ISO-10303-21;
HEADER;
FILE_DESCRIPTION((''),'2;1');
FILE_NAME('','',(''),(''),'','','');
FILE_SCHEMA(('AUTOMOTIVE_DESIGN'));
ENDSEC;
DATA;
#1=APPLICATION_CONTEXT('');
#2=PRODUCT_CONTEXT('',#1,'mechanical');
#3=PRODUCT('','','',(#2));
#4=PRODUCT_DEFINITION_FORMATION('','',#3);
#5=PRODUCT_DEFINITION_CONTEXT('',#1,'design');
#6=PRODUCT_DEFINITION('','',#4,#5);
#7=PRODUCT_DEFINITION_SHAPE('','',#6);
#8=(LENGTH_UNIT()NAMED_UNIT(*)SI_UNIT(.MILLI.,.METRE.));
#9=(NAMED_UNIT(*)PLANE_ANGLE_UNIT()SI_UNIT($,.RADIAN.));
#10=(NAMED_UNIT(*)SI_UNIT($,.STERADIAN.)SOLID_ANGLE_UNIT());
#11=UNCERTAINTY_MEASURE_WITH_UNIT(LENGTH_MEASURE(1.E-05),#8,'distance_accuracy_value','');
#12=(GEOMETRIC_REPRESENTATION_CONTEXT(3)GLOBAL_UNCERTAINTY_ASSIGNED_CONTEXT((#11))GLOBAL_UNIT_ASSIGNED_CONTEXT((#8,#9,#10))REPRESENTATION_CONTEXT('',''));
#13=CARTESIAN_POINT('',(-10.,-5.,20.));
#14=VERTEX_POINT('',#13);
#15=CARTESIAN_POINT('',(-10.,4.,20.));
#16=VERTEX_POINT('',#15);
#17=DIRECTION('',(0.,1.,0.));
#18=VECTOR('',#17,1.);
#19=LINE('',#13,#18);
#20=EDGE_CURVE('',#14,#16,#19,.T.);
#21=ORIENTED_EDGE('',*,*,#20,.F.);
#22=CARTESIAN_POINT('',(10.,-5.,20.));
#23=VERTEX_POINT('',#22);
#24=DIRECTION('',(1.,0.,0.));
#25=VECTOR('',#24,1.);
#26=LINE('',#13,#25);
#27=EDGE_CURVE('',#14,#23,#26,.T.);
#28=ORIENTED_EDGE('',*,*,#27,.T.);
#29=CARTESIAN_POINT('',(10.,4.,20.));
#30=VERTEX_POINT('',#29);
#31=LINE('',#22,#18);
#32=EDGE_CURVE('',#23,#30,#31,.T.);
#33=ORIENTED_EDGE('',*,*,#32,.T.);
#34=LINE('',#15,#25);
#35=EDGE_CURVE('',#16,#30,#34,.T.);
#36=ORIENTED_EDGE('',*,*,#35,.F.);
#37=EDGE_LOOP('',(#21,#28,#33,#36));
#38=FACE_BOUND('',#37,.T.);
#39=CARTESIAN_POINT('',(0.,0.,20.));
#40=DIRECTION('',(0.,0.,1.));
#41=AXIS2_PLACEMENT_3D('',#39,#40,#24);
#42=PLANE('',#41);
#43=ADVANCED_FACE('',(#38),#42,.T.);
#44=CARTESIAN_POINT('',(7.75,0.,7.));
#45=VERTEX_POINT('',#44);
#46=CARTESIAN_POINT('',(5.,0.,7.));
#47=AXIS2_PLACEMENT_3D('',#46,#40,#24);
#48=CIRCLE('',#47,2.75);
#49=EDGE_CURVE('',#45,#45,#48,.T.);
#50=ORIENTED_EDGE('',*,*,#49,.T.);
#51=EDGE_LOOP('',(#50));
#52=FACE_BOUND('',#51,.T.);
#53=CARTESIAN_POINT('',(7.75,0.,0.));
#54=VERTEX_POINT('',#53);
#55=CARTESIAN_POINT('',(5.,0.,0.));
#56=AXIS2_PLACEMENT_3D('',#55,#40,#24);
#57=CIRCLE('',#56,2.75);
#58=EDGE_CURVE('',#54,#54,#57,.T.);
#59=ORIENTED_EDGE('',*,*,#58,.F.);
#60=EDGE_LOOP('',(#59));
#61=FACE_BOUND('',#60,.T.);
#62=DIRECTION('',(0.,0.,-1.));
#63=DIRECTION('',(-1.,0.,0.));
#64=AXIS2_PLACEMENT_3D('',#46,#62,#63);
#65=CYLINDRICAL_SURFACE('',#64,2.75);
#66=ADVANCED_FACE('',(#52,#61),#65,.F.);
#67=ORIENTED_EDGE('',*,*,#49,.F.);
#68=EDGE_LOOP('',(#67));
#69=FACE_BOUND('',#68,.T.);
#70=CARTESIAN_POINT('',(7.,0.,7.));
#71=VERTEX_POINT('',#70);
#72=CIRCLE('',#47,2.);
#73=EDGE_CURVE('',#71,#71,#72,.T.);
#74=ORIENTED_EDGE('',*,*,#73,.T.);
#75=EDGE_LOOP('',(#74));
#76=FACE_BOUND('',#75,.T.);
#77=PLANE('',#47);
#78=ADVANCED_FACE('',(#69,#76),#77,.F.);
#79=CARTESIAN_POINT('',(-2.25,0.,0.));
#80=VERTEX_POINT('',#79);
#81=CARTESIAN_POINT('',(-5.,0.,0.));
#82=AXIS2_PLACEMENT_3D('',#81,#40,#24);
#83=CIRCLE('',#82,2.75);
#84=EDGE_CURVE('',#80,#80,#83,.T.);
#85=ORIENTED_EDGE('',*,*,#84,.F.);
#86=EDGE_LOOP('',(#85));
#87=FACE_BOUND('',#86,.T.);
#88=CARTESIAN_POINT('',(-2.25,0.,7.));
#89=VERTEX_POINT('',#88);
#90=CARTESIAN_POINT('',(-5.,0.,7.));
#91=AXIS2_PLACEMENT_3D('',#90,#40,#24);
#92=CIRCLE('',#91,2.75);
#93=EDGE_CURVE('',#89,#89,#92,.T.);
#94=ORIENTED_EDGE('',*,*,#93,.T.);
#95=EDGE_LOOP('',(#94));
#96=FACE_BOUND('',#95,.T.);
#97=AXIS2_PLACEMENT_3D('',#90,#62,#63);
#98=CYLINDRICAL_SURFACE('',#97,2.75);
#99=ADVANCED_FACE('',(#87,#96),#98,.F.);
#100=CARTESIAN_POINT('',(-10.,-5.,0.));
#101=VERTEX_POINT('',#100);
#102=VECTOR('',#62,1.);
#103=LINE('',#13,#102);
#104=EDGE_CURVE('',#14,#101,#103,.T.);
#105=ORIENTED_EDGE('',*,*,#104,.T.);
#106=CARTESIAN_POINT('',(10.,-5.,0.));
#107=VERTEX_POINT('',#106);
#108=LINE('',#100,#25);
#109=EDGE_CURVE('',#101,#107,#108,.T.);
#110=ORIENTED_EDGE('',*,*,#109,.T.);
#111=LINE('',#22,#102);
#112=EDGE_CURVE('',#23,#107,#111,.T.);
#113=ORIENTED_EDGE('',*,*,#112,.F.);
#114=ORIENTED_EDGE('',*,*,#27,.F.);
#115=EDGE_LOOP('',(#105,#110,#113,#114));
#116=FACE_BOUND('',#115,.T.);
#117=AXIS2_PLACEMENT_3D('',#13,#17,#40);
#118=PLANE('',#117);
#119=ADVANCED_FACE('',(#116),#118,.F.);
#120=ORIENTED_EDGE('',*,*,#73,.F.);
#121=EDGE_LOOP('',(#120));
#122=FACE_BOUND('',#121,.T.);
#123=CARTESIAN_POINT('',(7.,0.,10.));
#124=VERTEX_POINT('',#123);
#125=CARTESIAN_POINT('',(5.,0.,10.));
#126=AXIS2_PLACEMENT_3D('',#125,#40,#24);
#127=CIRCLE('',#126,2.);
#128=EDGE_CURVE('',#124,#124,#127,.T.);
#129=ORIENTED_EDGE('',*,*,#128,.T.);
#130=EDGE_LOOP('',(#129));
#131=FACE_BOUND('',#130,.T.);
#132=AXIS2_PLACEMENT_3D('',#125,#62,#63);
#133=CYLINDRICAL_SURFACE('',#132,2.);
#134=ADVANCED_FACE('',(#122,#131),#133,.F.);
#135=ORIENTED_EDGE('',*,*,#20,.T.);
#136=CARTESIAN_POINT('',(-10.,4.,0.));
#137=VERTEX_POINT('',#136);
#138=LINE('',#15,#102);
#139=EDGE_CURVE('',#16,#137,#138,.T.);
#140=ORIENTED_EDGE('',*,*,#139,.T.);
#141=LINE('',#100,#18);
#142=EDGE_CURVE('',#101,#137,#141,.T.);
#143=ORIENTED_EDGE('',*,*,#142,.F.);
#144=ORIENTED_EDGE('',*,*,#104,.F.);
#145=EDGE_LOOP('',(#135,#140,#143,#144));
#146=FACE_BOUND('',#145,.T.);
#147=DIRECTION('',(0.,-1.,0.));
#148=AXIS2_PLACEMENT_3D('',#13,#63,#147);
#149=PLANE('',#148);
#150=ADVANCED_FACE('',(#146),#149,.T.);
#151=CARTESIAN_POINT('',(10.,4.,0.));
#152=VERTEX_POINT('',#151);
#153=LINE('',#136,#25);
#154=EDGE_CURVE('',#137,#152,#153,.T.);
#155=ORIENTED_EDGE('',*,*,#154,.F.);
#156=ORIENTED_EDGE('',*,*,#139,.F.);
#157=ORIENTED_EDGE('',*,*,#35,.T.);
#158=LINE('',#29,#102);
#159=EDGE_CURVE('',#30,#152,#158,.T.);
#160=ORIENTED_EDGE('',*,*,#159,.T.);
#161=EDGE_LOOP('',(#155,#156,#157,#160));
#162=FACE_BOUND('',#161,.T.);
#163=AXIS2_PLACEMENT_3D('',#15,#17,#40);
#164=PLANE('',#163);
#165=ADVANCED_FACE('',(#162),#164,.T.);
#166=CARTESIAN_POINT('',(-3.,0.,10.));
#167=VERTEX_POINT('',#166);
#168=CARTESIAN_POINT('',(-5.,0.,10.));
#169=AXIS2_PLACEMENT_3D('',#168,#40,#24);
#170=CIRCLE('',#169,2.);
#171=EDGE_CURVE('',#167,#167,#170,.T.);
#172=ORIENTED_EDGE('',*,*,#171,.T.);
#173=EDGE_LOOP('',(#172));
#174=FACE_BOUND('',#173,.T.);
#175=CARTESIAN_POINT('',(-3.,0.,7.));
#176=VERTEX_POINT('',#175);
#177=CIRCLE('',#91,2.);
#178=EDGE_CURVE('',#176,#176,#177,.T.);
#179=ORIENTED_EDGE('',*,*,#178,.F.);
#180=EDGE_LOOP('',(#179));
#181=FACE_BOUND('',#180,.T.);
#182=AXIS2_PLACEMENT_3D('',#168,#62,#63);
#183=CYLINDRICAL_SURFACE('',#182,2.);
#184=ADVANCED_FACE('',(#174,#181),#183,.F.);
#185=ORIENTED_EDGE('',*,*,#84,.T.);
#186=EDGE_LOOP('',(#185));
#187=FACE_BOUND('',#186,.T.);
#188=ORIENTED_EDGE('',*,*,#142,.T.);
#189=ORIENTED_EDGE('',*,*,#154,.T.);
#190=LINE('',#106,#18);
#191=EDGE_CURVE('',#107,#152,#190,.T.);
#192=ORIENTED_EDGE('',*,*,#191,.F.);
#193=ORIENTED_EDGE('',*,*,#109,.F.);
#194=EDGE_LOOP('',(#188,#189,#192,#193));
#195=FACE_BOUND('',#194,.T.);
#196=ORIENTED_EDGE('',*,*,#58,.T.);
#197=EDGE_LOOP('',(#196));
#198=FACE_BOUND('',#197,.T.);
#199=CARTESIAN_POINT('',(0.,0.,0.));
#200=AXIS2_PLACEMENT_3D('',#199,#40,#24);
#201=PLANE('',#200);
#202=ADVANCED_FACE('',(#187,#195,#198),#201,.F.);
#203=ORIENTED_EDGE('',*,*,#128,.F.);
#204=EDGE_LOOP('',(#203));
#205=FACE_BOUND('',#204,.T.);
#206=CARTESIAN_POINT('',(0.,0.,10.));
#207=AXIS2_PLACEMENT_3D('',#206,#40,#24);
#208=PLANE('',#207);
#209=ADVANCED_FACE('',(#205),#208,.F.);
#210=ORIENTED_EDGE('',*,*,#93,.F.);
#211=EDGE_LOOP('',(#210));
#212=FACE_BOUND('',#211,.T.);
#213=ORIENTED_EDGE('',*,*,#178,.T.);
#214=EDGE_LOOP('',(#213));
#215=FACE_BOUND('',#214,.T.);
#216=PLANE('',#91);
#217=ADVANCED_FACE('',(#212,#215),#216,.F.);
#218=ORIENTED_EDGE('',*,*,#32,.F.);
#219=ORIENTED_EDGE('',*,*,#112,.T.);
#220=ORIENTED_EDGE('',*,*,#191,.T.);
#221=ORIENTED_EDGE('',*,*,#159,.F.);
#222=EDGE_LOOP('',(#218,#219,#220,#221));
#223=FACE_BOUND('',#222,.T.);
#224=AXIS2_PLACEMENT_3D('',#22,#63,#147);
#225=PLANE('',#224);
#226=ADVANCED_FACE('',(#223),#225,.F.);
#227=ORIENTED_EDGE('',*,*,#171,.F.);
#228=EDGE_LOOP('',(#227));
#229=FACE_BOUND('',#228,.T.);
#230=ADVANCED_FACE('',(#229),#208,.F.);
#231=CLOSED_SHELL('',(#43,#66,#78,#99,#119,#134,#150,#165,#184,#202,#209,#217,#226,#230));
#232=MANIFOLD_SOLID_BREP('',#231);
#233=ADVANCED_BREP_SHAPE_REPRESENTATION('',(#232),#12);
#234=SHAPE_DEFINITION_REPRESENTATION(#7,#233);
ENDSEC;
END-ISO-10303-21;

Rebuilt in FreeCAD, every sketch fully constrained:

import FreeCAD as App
import Part
import Sketcher

doc = App.newDocument("Part")
params = doc.addObject("Spreadsheet::Sheet", "Params")
for row, (alias, value) in enumerate([
    ("sketch1_width", "20 mm"),
    ("sketch1_height", "9 mm"),
    ("pad1_length", "20 mm"),
    ("sketch2_diameter", "4 mm"),
    ("pocket1_length", "10 mm"),
    ("sketch3_diameter", "5.5 mm"),
    ("pocket2_length", "7 mm"),
], start=1):
    params.set(f"A{row}", alias)
    params.set(f"B{row}", "=" + value)
    params.setAlias(f"B{row}", alias)

body = doc.addObject("PartDesign::Body", "Body")

sketch1 = body.newObject("Sketcher::SketchObject", "Sketch")
sketch1.AttachmentSupport = (doc.getObject("XY_Plane"), [""])
sketch1.MapMode = "FlatFace"
sketch1.addGeometry([
    Part.LineSegment(App.Vector(-10, 4, 0), App.Vector(-10, -5, 0)),
    Part.LineSegment(App.Vector(-10, -5, 0), App.Vector(10, -5, 0)),
    Part.LineSegment(App.Vector(10, -5, 0), App.Vector(10, 4, 0)),
    Part.LineSegment(App.Vector(10, 4, 0), App.Vector(-10, 4, 0)),
], False)
sketch1.addConstraint([
    Sketcher.Constraint("Coincident", 0, 2, 1, 1),
    Sketcher.Constraint("Coincident", 1, 2, 2, 1),
    Sketcher.Constraint("Coincident", 2, 2, 3, 1),
    Sketcher.Constraint("Coincident", 3, 2, 0, 1),
    Sketcher.Constraint("Vertical", 0),
    Sketcher.Constraint("Horizontal", 1),
    Sketcher.Constraint("Vertical", 2),
    Sketcher.Constraint("Horizontal", 3),
    Sketcher.Constraint("DistanceX", 1, 1, 1, 2, 20.0),
    Sketcher.Constraint("DistanceY", 0, 2, 0, 1, 9.0),
    Sketcher.Constraint("DistanceX", 0, 2, -1, 1, 10.0),
    Sketcher.Constraint("DistanceY", 0, 2, -1, 1, 5.0),
])
sketch1.setExpression("Constraints[8]", "Params.sketch1_width")
sketch1.setExpression("Constraints[9]", "Params.sketch1_height")
pad1 = body.newObject("PartDesign::Pad", "Pad")
pad1.Profile = sketch1
pad1.setExpression("Length", "Params.pad1_length")

sketch2 = body.newObject("Sketcher::SketchObject", "Sketch001")
sketch2.AttachmentSupport = (doc.getObject("XY_Plane"), [""])
sketch2.MapMode = "FlatFace"
sketch2.addGeometry([
    Part.Circle(App.Vector(-5, 0, 0), App.Vector(0, 0, 1), 2),
    Part.Circle(App.Vector(5, 0, 0), App.Vector(0, 0, 1), 2),
], False)
sketch2.addConstraint([
    Sketcher.Constraint("Equal", 0, 1),
    Sketcher.Constraint("Symmetric", 0, 3, 1, 3, -1, 1),
    Sketcher.Constraint("PointOnObject", 0, 3, -1),
    Sketcher.Constraint("Diameter", 0, 4.0),
    Sketcher.Constraint("DistanceX", 0, 3, -1, 1, 5.0),
])
sketch2.setExpression("Constraints[3]", "Params.sketch2_diameter")
pocket1 = body.newObject("PartDesign::Pocket", "Pocket")
pocket1.Profile = sketch2
pocket1.setExpression("Length", "Params.pocket1_length")
pocket1.Reversed = True

sketch3 = body.newObject("Sketcher::SketchObject", "Sketch002")
sketch3.AttachmentSupport = (doc.getObject("XY_Plane"), [""])
sketch3.MapMode = "FlatFace"
sketch3.addGeometry([
    Part.Circle(App.Vector(-5, 0, 0), App.Vector(0, 0, 1), 2.8),
    Part.Circle(App.Vector(5, 0, 0), App.Vector(0, 0, 1), 2.8),
], False)
sketch3.addConstraint([
    Sketcher.Constraint("Equal", 0, 1),
    Sketcher.Constraint("Symmetric", 0, 3, 1, 3, -1, 1),
    Sketcher.Constraint("PointOnObject", 0, 3, -1),
    Sketcher.Constraint("Diameter", 0, 5.5),
    Sketcher.Constraint("DistanceX", 0, 3, -1, 1, 5.0),
])
sketch3.setExpression("Constraints[3]", "Params.sketch3_diameter")
pocket2 = body.newObject("PartDesign::Pocket", "Pocket001")
pocket2.Profile = sketch3
pocket2.setExpression("Length", "Params.pocket2_length")
pocket2.Reversed = True

doc.recompute()
